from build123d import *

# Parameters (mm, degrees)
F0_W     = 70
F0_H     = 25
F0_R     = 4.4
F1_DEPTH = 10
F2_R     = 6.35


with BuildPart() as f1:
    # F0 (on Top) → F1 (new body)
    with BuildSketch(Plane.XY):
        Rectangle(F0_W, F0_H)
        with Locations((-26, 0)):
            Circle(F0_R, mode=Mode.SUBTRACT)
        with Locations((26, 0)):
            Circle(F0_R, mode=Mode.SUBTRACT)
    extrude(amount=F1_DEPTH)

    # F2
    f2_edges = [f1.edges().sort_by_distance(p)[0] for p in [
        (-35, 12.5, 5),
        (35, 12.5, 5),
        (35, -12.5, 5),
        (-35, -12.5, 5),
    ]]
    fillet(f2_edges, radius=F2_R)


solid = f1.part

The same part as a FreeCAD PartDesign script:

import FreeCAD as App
import Part
import Sketcher
Q = App.Units.Quantity


def edges_at(feature, points):
    """Names of the edges that pass closest to the given points."""
    edges = feature.Shape.Edges
    near = lambda p: min(range(len(edges)), key=lambda i: edges[i].distToShape(Part.Vertex(*p))[0])
    return sorted({f"Edge{near(p) + 1}" for p in points})


def add_polygon(sketch, points):
    """Adds a closed chain of lines whose ends are joined by coincident constraints."""
    first, n = sketch.GeometryCount, len(points)
    for a, b in zip(points, points[1:] + points[:1]):
        sketch.addGeometry(Part.LineSegment(App.Vector(*a, 0), App.Vector(*b, 0)), False)
    for i in range(n):
        sketch.addConstraint(Sketcher.Constraint("Coincident", first + i, 2, first + (i + 1) % n, 1))

doc = App.newDocument("Part")
body = doc.addObject("PartDesign::Body", "Body")

sketch1 = body.newObject("Sketcher::SketchObject", "Sketch")
sketch1.AttachmentSupport = (doc.getObject("XY_Plane"), [""])
sketch1.MapMode = "FlatFace"
add_polygon(sketch1, [(-35, 12.5), (-35, -12.5), (35, -12.5), (35, 12.5)])
sketch1.addGeometry(Part.Circle(App.Vector(-26, 0, 0), App.Vector(0, 0, 1), 4.4), False)
sketch1.addGeometry(Part.Circle(App.Vector(26, 0, 0), App.Vector(0, 0, 1), 4.4), False)
sketch1.addConstraint(Sketcher.Constraint("Vertical", 0))
sketch1.addConstraint(Sketcher.Constraint("Horizontal", 1))
sketch1.addConstraint(Sketcher.Constraint("Vertical", 2))
sketch1.addConstraint(Sketcher.Constraint("Horizontal", 3))
sketch1.addConstraint(Sketcher.Constraint("Equal", 4, 5))
sketch1.addConstraint(Sketcher.Constraint("Symmetric", 4, 3, 5, 3, -1, 1))
sketch1.addConstraint(Sketcher.Constraint("Symmetric", 0, 2, 2, 2, -1, 1))
sketch1.addConstraint(Sketcher.Constraint("PointOnObject", 4, 3, -1))
sketch1.addConstraint(Sketcher.Constraint("Diameter", 4, Q("8.8 mm")))
sketch1.addConstraint(Sketcher.Constraint("DistanceX", 1, 1, 1, 2, Q("70 mm")))
sketch1.addConstraint(Sketcher.Constraint("DistanceY", 0, 2, 0, 1, Q("25 mm")))
sketch1.addConstraint(Sketcher.Constraint("DistanceX", 4, 3, -1, 1, Q("26 mm")))
pad1 = body.newObject("PartDesign::Pad", "Pad")
pad1.Profile = sketch1
pad1.Length = 10
doc.recompute()

fillet = body.newObject("PartDesign::Fillet", "Fillet")
fillet.Base = (pad1, edges_at(pad1, [
    (-35, 12.5, 5),
    (35, 12.5, 5),
    (35, -12.5, 5),
    (-35, -12.5, 5),
]))
fillet.Radius = 6.35

doc.recompute()
